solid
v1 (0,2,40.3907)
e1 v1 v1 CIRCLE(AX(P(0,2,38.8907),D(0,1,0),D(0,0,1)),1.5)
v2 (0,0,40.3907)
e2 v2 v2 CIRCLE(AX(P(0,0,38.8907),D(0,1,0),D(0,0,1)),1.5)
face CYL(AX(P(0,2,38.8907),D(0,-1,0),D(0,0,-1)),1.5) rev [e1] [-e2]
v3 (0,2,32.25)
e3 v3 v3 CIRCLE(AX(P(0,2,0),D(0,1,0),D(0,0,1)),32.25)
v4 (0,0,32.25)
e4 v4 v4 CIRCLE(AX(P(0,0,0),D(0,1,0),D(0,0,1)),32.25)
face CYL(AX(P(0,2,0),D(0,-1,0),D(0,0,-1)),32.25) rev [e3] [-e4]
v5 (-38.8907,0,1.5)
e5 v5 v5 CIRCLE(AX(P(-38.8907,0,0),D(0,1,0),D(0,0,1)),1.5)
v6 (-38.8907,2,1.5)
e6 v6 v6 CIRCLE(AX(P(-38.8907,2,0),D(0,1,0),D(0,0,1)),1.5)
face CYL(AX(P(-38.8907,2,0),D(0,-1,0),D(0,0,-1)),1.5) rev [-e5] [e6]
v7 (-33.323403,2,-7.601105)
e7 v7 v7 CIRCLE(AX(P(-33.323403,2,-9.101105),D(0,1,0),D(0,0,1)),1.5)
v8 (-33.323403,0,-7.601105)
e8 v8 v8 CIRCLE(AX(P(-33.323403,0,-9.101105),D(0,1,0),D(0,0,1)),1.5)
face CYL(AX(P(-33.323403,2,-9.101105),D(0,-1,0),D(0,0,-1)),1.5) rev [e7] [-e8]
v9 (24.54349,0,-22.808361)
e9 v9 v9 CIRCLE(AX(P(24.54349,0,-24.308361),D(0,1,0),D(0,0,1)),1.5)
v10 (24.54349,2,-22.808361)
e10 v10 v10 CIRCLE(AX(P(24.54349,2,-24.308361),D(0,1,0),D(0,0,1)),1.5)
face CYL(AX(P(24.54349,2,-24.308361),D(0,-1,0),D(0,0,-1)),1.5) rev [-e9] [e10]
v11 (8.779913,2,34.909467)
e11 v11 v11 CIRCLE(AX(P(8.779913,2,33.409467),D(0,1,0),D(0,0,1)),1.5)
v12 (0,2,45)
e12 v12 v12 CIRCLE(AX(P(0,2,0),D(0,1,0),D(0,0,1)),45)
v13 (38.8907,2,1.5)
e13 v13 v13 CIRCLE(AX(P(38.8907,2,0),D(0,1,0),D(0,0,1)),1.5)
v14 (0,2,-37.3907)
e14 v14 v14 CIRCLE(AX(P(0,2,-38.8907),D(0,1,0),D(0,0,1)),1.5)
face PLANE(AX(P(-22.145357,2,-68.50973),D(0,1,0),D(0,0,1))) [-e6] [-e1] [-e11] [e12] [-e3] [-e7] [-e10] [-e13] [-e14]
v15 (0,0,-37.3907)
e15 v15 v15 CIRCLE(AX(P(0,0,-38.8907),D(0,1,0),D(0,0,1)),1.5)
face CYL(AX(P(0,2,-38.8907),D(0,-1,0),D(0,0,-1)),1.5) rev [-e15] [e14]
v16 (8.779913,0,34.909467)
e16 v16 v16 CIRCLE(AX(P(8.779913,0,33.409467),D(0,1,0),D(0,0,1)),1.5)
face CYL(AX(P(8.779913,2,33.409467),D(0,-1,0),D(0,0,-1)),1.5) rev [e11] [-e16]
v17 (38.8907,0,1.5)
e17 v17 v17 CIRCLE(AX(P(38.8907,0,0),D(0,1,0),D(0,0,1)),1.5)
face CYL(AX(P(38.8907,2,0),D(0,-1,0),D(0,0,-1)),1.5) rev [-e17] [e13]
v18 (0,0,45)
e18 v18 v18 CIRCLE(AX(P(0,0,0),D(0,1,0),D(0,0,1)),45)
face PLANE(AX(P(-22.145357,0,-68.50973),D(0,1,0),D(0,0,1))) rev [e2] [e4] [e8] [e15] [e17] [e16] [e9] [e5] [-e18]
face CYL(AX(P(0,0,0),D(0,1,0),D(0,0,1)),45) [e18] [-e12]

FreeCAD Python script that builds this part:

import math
import FreeCAD as App
import Part
import Sketcher

V = App.Vector
Q = App.Units.Quantity

doc = App.newDocument("Part")
body = doc.addObject("PartDesign::Body", "Body")

# Sketch on XZ plane
sketch1 = body.newObject("Sketcher::SketchObject", "Sketch")
sketch1.AttachmentSupport = (doc.getObject("XZ_Plane"), [""])
sketch1.MapMode = "FlatFace"
sketch1.addGeometry(Part.LineSegment(V(40.1, -43.7, 0), V(17.9, -48.9, 0)), False)
sketch1.addGeometry(Part.ArcOfCircle(Part.Circle(V(22.5, -68.4, 0), V(0, 0, 1), 20), math.radians(103.34), math.radians(108.22)), False)
sketch1.addGeometry(Part.ArcOfCircle(Part.Circle(V(0, 0, 0), V(0, 0, 1), 52), math.radians(-89.85), math.radians(-71.78)), False)
sketch1.addGeometry(Part.ArcOfCircle(Part.Circle(V(0, 0, 0), V(0, 0, 1), 52), math.radians(-107.91), math.radians(-89.85)), False)
sketch1.addGeometry(Part.ArcOfCircle(Part.Circle(V(-22.1, -68.5, 0), V(0, 0, 1), 20), math.radians(72.09), math.radians(76.96)), False)
sketch1.addGeometry(Part.LineSegment(V(-17.6, -49, 0), V(-39.9, -43.9, 0)), False)
sketch1.addGeometry(Part.ArcOfCircle(Part.Circle(V(-38.8, -39, 0), V(0, 0, 1), 5), math.radians(-167), math.radians(-103)), False)
sketch1.addGeometry(Part.LineSegment(V(-43.7, -40.1, 0), V(-48.9, -17.9, 0)), False)
sketch1.addGeometry(Part.ArcOfCircle(Part.Circle(V(-68.4, -22.5, 0), V(0, 0, 1), 20), math.radians(13.34), math.radians(18.22)), False)
sketch1.addGeometry(Part.ArcOfCircle(Part.Circle(V(0, 0, 0), V(0, 0, 1), 52), math.radians(162), math.radians(198)), False)
sketch1.addGeometry(Part.ArcOfCircle(Part.Circle(V(-68.5, 22.1, 0), V(0, 0, 1), 20), math.radians(-17.91), math.radians(-13.04)), False)
sketch1.addGeometry(Part.LineSegment(V(-49, 17.6, 0), V(-43.9, 39.9, 0)), False)
sketch1.addGeometry(Part.ArcOfCircle(Part.Circle(V(-39, 38.8, 0), V(0, 0, 1), 5), math.radians(103), math.radians(167)), False)
sketch1.addGeometry(Part.LineSegment(V(-40.1, 43.7, 0), V(-17.9, 48.9, 0)), False)
sketch1.addGeometry(Part.ArcOfCircle(Part.Circle(V(-22.5, 68.4, 0), V(0, 0, 1), 20), math.radians(-76.66), math.radians(-71.78)), False)
sketch1.addGeometry(Part.ArcOfCircle(Part.Circle(V(0, 0, 0), V(0, 0, 1), 52), math.radians(72), math.radians(108)), False)
sketch1.addGeometry(Part.ArcOfCircle(Part.Circle(V(22.1, 68.5, 0), V(0, 0, 1), 20), math.radians(-107.91), math.radians(-103.04)), False)
sketch1.addGeometry(Part.LineSegment(V(17.6, 49, 0), V(39.9, 43.9, 0)), False)
sketch1.addGeometry(Part.ArcOfCircle(Part.Circle(V(38.8, 39, 0), V(0, 0, 1), 5), math.radians(13), math.radians(77)), False)
sketch1.addGeometry(Part.LineSegment(V(43.7, 40.1, 0), V(48.9, 17.9, 0)), False)
sketch1.addGeometry(Part.ArcOfCircle(Part.Circle(V(68.4, 22.5, 0), V(0, 0, 1), 20), math.radians(-166.66), math.radians(-161.78)), False)
sketch1.addGeometry(Part.ArcOfCircle(Part.Circle(V(0, 0, 0), V(0, 0, 1), 52), math.radians(-18), math.radians(18)), False)
sketch1.addGeometry(Part.ArcOfCircle(Part.Circle(V(68.5, -22.1, 0), V(0, 0, 1), 20), math.radians(162.09), math.radians(166.96)), False)
sketch1.addGeometry(Part.LineSegment(V(49, -17.6, 0), V(43.9, -39.9, 0)), False)
sketch1.addGeometry(Part.ArcOfCircle(Part.Circle(V(39, -38.8, 0), V(0, 0, 1), 5), math.radians(-77), math.radians(-13)), False)
sketch1.addGeometry(Part.Circle(V(38.9, 38.9, 0), V(0, 0, 1), 1.5), False)
sketch1.addGeometry(Part.Circle(V(8.8, 33.4, 0), V(0, 0, 1), 1.5), False)
sketch1.addGeometry(Part.Circle(V(0, 38.9, 0), V(0, 0, 1), 1.5), False)
sketch1.addGeometry(Part.Circle(V(-38.9, 38.9, 0), V(0, 0, 1), 1.5), False)
sketch1.addGeometry(Part.Circle(V(38.9, 0, 0), V(0, 0, 1), 1.5), False)
sketch1.addGeometry(Part.Circle(V(24.5, -24.3, 0), V(0, 0, 1), 1.5), False)
sketch1.addGeometry(Part.Circle(V(38.9, -38.9, 0), V(0, 0, 1), 1.5), False)
sketch1.addGeometry(Part.Circle(V(0, 0, 0), V(0, 0, 1), 32.2), False)
sketch1.addGeometry(Part.Circle(V(-38.9, 0, 0), V(0, 0, 1), 1.5), False)
sketch1.addGeometry(Part.Circle(V(-33.3, -9.1, 0), V(0, 0, 1), 1.5), False)
sketch1.addGeometry(Part.Circle(V(0, -38.9, 0), V(0, 0, 1), 1.5), False)
sketch1.addGeometry(Part.Circle(V(-38.9, -38.9, 0), V(0, 0, 1), 1.5), False)
sketch1.addConstraint(Sketcher.Constraint("Tangent", 0, 2, 1, 1))
sketch1.addConstraint(Sketcher.Constraint("Tangent", 1, 2, 2, 2))
sketch1.addConstraint(Sketcher.Constraint("Tangent", 2, 1, 3, 2))
sketch1.addConstraint(Sketcher.Constraint("Tangent", 3, 1, 4, 1))
sketch1.addConstraint(Sketcher.Constraint("Tangent", 4, 2, 5, 1))
sketch1.addConstraint(Sketcher.Constraint("Tangent", 5, 2, 6, 2))
sketch1.addConstraint(Sketcher.Constraint("Tangent", 6, 1, 7, 1))
sketch1.addConstraint(Sketcher.Constraint("Tangent", 7, 2, 8, 1))
sketch1.addConstraint(Sketcher.Constraint("Tangent", 8, 2, 9, 2))
sketch1.addConstraint(Sketcher.Constraint("Tangent", 9, 1, 10, 1))
sketch1.addConstraint(Sketcher.Constraint("Tangent", 10, 2, 11, 1))
sketch1.addConstraint(Sketcher.Constraint("Tangent", 11, 2, 12, 2))
sketch1.addConstraint(Sketcher.Constraint("Tangent", 12, 1, 13, 1))
sketch1.addConstraint(Sketcher.Constraint("Tangent", 13, 2, 14, 1))
sketch1.addConstraint(Sketcher.Constraint("Tangent", 14, 2, 15, 2))
sketch1.addConstraint(Sketcher.Constraint("Tangent", 15, 1, 16, 1))
sketch1.addConstraint(Sketcher.Constraint("Tangent", 16, 2, 17, 1))
sketch1.addConstraint(Sketcher.Constraint("Tangent", 17, 2, 18, 2))
sketch1.addConstraint(Sketcher.Constraint("Tangent", 18, 1, 19, 1))
sketch1.addConstraint(Sketcher.Constraint("Tangent", 19, 2, 20, 1))
sketch1.addConstraint(Sketcher.Constraint("Tangent", 20, 2, 21, 2))
sketch1.addConstraint(Sketcher.Constraint("Tangent", 21, 1, 22, 1))
sketch1.addConstraint(Sketcher.Constraint("Tangent", 22, 2, 23, 1))
sketch1.addConstraint(Sketcher.Constraint("Tangent", 23, 2, 24, 2))
sketch1.addConstraint(Sketcher.Constraint("Tangent", 24, 1, 0, 1))
sketch1.addConstraint(Sketcher.Constraint("Coincident", 2, 3, -1, 1))
sketch1.addConstraint(Sketcher.Constraint("Coincident", 9, 3, -1, 1))
sketch1.addConstraint(Sketcher.Constraint("Coincident", 15, 3, -1, 1))
sketch1.addConstraint(Sketcher.Constraint("Coincident", 21, 3, -1, 1))
sketch1.addConstraint(Sketcher.Constraint("Coincident", 32, 3, -1, 1))
sketch1.addConstraint(Sketcher.Constraint("Equal", 2, 3))
sketch1.addConstraint(Sketcher.Constraint("Equal", 1, 4))
sketch1.addConstraint(Sketcher.Constraint("Equal", 4, 8))
sketch1.addConstraint(Sketcher.Constraint("Equal", 3, 9))
sketch1.addConstraint(Sketcher.Constraint("Equal", 8, 10))
sketch1.addConstraint(Sketcher.Constraint("Equal", 6, 12))
sketch1.addConstraint(Sketcher.Constraint("Equal", 10, 14))
sketch1.addConstraint(Sketcher.Constraint("Equal", 9, 15))
sketch1.addConstraint(Sketcher.Constraint("Equal", 14, 16))
sketch1.addConstraint(Sketcher.Constraint("Equal", 12, 18))
sketch1.addConstraint(Sketcher.Constraint("Equal", 16, 20))
sketch1.addConstraint(Sketcher.Constraint("Equal", 15, 21))
sketch1.addConstraint(Sketcher.Constraint("Equal", 20, 22))
sketch1.addConstraint(Sketcher.Constraint("Equal", 18, 24))
sketch1.addConstraint(Sketcher.Constraint("Equal", 25, 26))
sketch1.addConstraint(Sketcher.Constraint("Equal", 26, 27))
sketch1.addConstraint(Sketcher.Constraint("Equal", 27, 28))
sketch1.addConstraint(Sketcher.Constraint("Equal", 28, 29))
sketch1.addConstraint(Sketcher.Constraint("Equal", 29, 30))
sketch1.addConstraint(Sketcher.Constraint("Equal", 30, 31))
sketch1.addConstraint(Sketcher.Constraint("Equal", 31, 33))
sketch1.addConstraint(Sketcher.Constraint("Equal", 33, 34))
sketch1.addConstraint(Sketcher.Constraint("Equal", 34, 35))
sketch1.addConstraint(Sketcher.Constraint("Equal", 35, 36))
sketch1.addConstraint(Sketcher.Constraint("Symmetric", 6, 3, 18, 3, -1, 1))
sketch1.addConstraint(Sketcher.Constraint("Symmetric", 12, 3, 24, 3, -1, 1))
sketch1.addConstraint(Sketcher.Constraint("Symmetric", 28, 3, 31, 3, -1, 1))
sketch1.addConstraint(Sketcher.Constraint("Symmetric", 29, 3, 33, 3, -1, 1))
sketch1.addConstraint(Sketcher.Constraint("Symmetric", 27, 3, 35, 3, -1, 1))
sketch1.addConstraint(Sketcher.Constraint("Symmetric", 25, 3, 36, 3, -1, 1))
sketch1.addConstraint(Sketcher.Constraint("Symmetric", 25, 3, 28, 3, -2))
sketch1.addConstraint(Sketcher.Constraint("PointOnObject", 27, 3, -2))
sketch1.addConstraint(Sketcher.Constraint("PointOnObject", 29, 3, -1))
sketch1.addConstraint(Sketcher.Constraint("Perpendicular", 0, 7))
sketch1.addConstraint(Sketcher.Constraint("Perpendicular", 5, 11))
sketch1.addConstraint(Sketcher.Constraint("Perpendicular", 7, 13))
sketch1.addConstraint(Sketcher.Constraint("Perpendicular", 11, 17))
sketch1.addConstraint(Sketcher.Constraint("Perpendicular", 13, 19))
sketch1.addConstraint(Sketcher.Constraint("Perpendicular", 17, 23))
sketch1.addConstraint(Sketcher.Constraint("Horizontal", 25, 3, 27, 3))
sketch1.addConstraint(Sketcher.Constraint("Vertical", 25, 3, 29, 3))
sketch1.addConstraint(Sketcher.Constraint("Equal", 0, 5))
sketch1.addConstraint(Sketcher.Constraint("Equal", 5, 7))
sketch1.addConstraint(Sketcher.Constraint("Equal", 7, 11))
sketch1.addConstraint(Sketcher.Constraint("Diameter", 25, Q("3 mm")))
sketch1.addConstraint(Sketcher.Constraint("Radius", 1, Q("20 mm")))
sketch1.addConstraint(Sketcher.Constraint("Radius", 2, Q("52 mm")))
sketch1.addConstraint(Sketcher.Constraint("Radius", 6, Q("5 mm")))
sketch1.addConstraint(Sketcher.Constraint("Diameter", 32, Q("64.5 mm")))
sketch1.addConstraint(Sketcher.Constraint("DistanceY", 6, 3, 8, 3, Q("16.481998 mm")))
sketch1.addConstraint(Sketcher.Constraint("DistanceX", -1, 1, 25, 3, Q("38.8907 mm")))
sketch1.addConstraint(Sketcher.Constraint("DistanceY", -1, 1, 25, 3, Q("38.8907 mm")))
sketch1.addConstraint(Sketcher.Constraint("DistanceX", 5, 2, -1, 1, Q("39.9141 mm")))
sketch1.addConstraint(Sketcher.Constraint("DistanceX", 4, 3, 1, 3, Q("44.658602 mm")))
sketch1.addConstraint(Sketcher.Constraint("DistanceX", -1, 1, 30, 3, Q("24.54349 mm")))
sketch1.addConstraint(Sketcher.Constraint("DistanceY", 30, 3, -1, 1, Q("24.308361 mm")))
sketch1.addConstraint(Sketcher.Constraint("DistanceX", -1, 1, 2, 1, Q("0.139738 mm")))
sketch1.addConstraint(Sketcher.Constraint("DistanceX", 26, 3, 18, 3, Q("30.006309 mm")))
sketch1.addConstraint(Sketcher.Constraint("DistanceX", 6, 3, 34, 3, Q("5.462819 mm")))
sketch1.addConstraint(Sketcher.Constraint("DistanceY", 8, 2, 34, 3, Q("7.158461 mm")))
sketch1.addConstraint(Sketcher.Constraint("DistanceY", 26, 3, 16, 2, Q("15.61575 mm")))
pad1 = body.newObject("PartDesign::Pad", "Pad")
pad1.Profile = sketch1
pad1.Length = 2
pad1.Reversed = True

# Sketch on XZ plane
sketch2 = body.newObject("Sketcher::SketchObject", "Sketch001")
sketch2.AttachmentSupport = (doc.getObject("XZ_Plane"), [""])
sketch2.MapMode = "FlatFace"
sketch2.AttachmentOffset = App.Placement(V(0, 0, -2), App.Rotation())
sketch2.addGeometry(Part.LineSegment(V(-43.7, -40.1, 0), V(-48.9, -17.9, 0)), False)
sketch2.addGeometry(Part.ArcOfCircle(Part.Circle(V(-68.4, -22.5, 0), V(0, 0, 1), 20), math.radians(13.34), math.radians(18.22)), False)
sketch2.addGeometry(Part.ArcOfCircle(Part.Circle(V(0, 0, 0), V(0, 0, 1), 52), math.radians(162), math.radians(198)), False)
sketch2.addGeometry(Part.ArcOfCircle(Part.Circle(V(-68.5, 22.1, 0), V(0, 0, 1), 20), math.radians(-17.91), math.radians(-13.04)), False)
sketch2.addGeometry(Part.LineSegment(V(-49, 17.6, 0), V(-43.9, 39.9, 0)), False)
sketch2.addGeometry(Part.ArcOfCircle(Part.Circle(V(-39, 38.8, 0), V(0, 0, 1), 5), math.radians(103), math.radians(167)), False)
sketch2.addGeometry(Part.LineSegment(V(-40.1, 43.7, 0), V(-17.9, 48.9, 0)), False)
sketch2.addGeometry(Part.ArcOfCircle(Part.Circle(V(-22.5, 68.4, 0), V(0, 0, 1), 20), math.radians(-76.66), math.radians(-71.78)), False)
sketch2.addGeometry(Part.ArcOfCircle(Part.Circle(V(0, 0, 0), V(0, 0, 1), 52), math.radians(72), math.radians(108)), False)
sketch2.addGeometry(Part.ArcOfCircle(Part.Circle(V(22.1, 68.5, 0), V(0, 0, 1), 20), math.radians(-107.91), math.radians(-103.04)), False)
sketch2.addGeometry(Part.LineSegment(V(17.6, 49, 0), V(39.9, 43.9, 0)), False)
sketch2.addGeometry(Part.ArcOfCircle(Part.Circle(V(38.8, 39, 0), V(0, 0, 1), 5), math.radians(13), math.radians(77)), False)
sketch2.addGeometry(Part.LineSegment(V(43.7, 40.1, 0), V(48.9, 17.9, 0)), False)
sketch2.addGeometry(Part.ArcOfCircle(Part.Circle(V(68.4, 22.5, 0), V(0, 0, 1), 20), math.radians(-166.66), math.radians(-161.78)), False)
sketch2.addGeometry(Part.ArcOfCircle(Part.Circle(V(0, 0, 0), V(0, 0, 1), 52), math.radians(-18), math.radians(18)), False)
sketch2.addGeometry(Part.ArcOfCircle(Part.Circle(V(68.5, -22.1, 0), V(0, 0, 1), 20), math.radians(162.09), math.radians(166.96)), False)
sketch2.addGeometry(Part.LineSegment(V(49, -17.6, 0), V(43.9, -39.9, 0)), False)
sketch2.addGeometry(Part.ArcOfCircle(Part.Circle(V(39, -38.8, 0), V(0, 0, 1), 5), math.radians(-77), math.radians(-13)), False)
sketch2.addGeometry(Part.LineSegment(V(40.1, -43.7, 0), V(17.9, -48.9, 0)), False)
sketch2.addGeometry(Part.ArcOfCircle(Part.Circle(V(22.5, -68.4, 0), V(0, 0, 1), 20), math.radians(103.34), math.radians(108.22)), False)
sketch2.addGeometry(Part.ArcOfCircle(Part.Circle(V(0, 0, 0), V(0, 0, 1), 52), math.radians(-108), math.radians(-72)), False)
sketch2.addGeometry(Part.ArcOfCircle(Part.Circle(V(-22.1, -68.5, 0), V(0, 0, 1), 20), math.radians(72.09), math.radians(76.96)), False)
sketch2.addGeometry(Part.LineSegment(V(-17.6, -49, 0), V(-39.9, -43.9, 0)), False)
sketch2.addGeometry(Part.ArcOfCircle(Part.Circle(V(-38.8, -39, 0), V(0, 0, 1), 5), math.radians(-167), math.radians(-103)), False)
sketch2.addGeometry(Part.Circle(V(0, 0, 0), V(0, 0, 1), 45), False)
sketch2.addConstraint(Sketcher.Constraint("Tangent", 0, 2, 1, 1))
sketch2.addConstraint(Sketcher.Constraint("Tangent", 1, 2, 2, 2))
sketch2.addConstraint(Sketcher.Constraint("Tangent", 2, 1, 3, 1))
sketch2.addConstraint(Sketcher.Constraint("Tangent", 3, 2, 4, 1))
sketch2.addConstraint(Sketcher.Constraint("Tangent", 4, 2, 5, 2))
sketch2.addConstraint(Sketcher.Constraint("Tangent", 5, 1, 6, 1))
sketch2.addConstraint(Sketcher.Constraint("Tangent", 6, 2, 7, 1))
sketch2.addConstraint(Sketcher.Constraint("Tangent", 7, 2, 8, 2))
sketch2.addConstraint(Sketcher.Constraint("Tangent", 8, 1, 9, 1))
sketch2.addConstraint(Sketcher.Constraint("Tangent", 9, 2, 10, 1))
sketch2.addConstraint(Sketcher.Constraint("Tangent", 10, 2, 11, 2))
sketch2.addConstraint(Sketcher.Constraint("Tangent", 11, 1, 12, 1))
sketch2.addConstraint(Sketcher.Constraint("Tangent", 12, 2, 13, 1))
sketch2.addConstraint(Sketcher.Constraint("Tangent", 13, 2, 14, 2))
sketch2.addConstraint(Sketcher.Constraint("Tangent", 14, 1, 15, 1))
sketch2.addConstraint(Sketcher.Constraint("Tangent", 15, 2, 16, 1))
sketch2.addConstraint(Sketcher.Constraint("Tangent", 16, 2, 17, 2))
sketch2.addConstraint(Sketcher.Constraint("Tangent", 17, 1, 18, 1))
sketch2.addConstraint(Sketcher.Constraint("Tangent", 18, 2, 19, 1))
sketch2.addConstraint(Sketcher.Constraint("Tangent", 19, 2, 20, 2))
sketch2.addConstraint(Sketcher.Constraint("Tangent", 20, 1, 21, 1))
sketch2.addConstraint(Sketcher.Constraint("Tangent", 21, 2, 22, 1))
sketch2.addConstraint(Sketcher.Constraint("Tangent", 22, 2, 23, 2))
sketch2.addConstraint(Sketcher.Constraint("Tangent", 23, 1, 0, 1))
sketch2.addConstraint(Sketcher.Constraint("Coincident", 2, 3, -1, 1))
sketch2.addConstraint(Sketcher.Constraint("Coincident", 8, 3, -1, 1))
sketch2.addConstraint(Sketcher.Constraint("Coincident", 14, 3, -1, 1))
sketch2.addConstraint(Sketcher.Constraint("Coincident", 20, 3, -1, 1))
sketch2.addConstraint(Sketcher.Constraint("Coincident", 24, 3, -1, 1))
sketch2.addConstraint(Sketcher.Constraint("Equal", 1, 3))
sketch2.addConstraint(Sketcher.Constraint("Equal", 3, 7))
sketch2.addConstraint(Sketcher.Constraint("Equal", 2, 8))
sketch2.addConstraint(Sketcher.Constraint("Equal", 7, 9))
sketch2.addConstraint(Sketcher.Constraint("Equal", 5, 11))
sketch2.addConstraint(Sketcher.Constraint("Equal", 9, 13))
sketch2.addConstraint(Sketcher.Constraint("Equal", 8, 14))
sketch2.addConstraint(Sketcher.Constraint("Equal", 13, 15))
sketch2.addConstraint(Sketcher.Constraint("Equal", 11, 17))
sketch2.addConstraint(Sketcher.Constraint("Equal", 15, 19))
sketch2.addConstraint(Sketcher.Constraint("Equal", 14, 20))
sketch2.addConstraint(Sketcher.Constraint("Equal", 19, 21))
sketch2.addConstraint(Sketcher.Constraint("Equal", 17, 23))
sketch2.addConstraint(Sketcher.Constraint("Symmetric", 5, 3, 17, 3, -1, 1))
sketch2.addConstraint(Sketcher.Constraint("Symmetric", 11, 3, 23, 3, -1, 1))
sketch2.addConstraint(Sketcher.Constraint("Perpendicular", 0, 6))
sketch2.addConstraint(Sketcher.Constraint("Perpendicular", 4, 10))
sketch2.addConstraint(Sketcher.Constraint("Perpendicular", 6, 12))
sketch2.addConstraint(Sketcher.Constraint("Perpendicular", 10, 16))
sketch2.addConstraint(Sketcher.Constraint("Perpendicular", 12, 18))
sketch2.addConstraint(Sketcher.Constraint("Perpendicular", 16, 22))
sketch2.addConstraint(Sketcher.Constraint("Equal", 0, 4))
sketch2.addConstraint(Sketcher.Constraint("Equal", 4, 6))
sketch2.addConstraint(Sketcher.Constraint("Equal", 6, 10))
sketch2.addConstraint(Sketcher.Constraint("Diameter", 24, Q("90 mm")))
sketch2.addConstraint(Sketcher.Constraint("Radius", 1, Q("20 mm")))
sketch2.addConstraint(Sketcher.Constraint("Radius", 2, Q("52 mm")))
sketch2.addConstraint(Sketcher.Constraint("Radius", 5, Q("5 mm")))
sketch2.addConstraint(Sketcher.Constraint("DistanceX", 5, 3, 7, 3, Q("16.481998 mm")))
sketch2.addConstraint(Sketcher.Constraint("DistanceY", -1, 1, 4, 2, Q("39.9141 mm")))
sketch2.addConstraint(Sketcher.Constraint("DistanceY", 1, 3, 3, 3, Q("44.658602 mm")))
pocket1 = body.newObject("PartDesign::Pocket", "Pocket")
pocket1.Profile = sketch2
pocket1.Type = "ThroughAll"
pocket1.Reversed = True

doc.recompute()
